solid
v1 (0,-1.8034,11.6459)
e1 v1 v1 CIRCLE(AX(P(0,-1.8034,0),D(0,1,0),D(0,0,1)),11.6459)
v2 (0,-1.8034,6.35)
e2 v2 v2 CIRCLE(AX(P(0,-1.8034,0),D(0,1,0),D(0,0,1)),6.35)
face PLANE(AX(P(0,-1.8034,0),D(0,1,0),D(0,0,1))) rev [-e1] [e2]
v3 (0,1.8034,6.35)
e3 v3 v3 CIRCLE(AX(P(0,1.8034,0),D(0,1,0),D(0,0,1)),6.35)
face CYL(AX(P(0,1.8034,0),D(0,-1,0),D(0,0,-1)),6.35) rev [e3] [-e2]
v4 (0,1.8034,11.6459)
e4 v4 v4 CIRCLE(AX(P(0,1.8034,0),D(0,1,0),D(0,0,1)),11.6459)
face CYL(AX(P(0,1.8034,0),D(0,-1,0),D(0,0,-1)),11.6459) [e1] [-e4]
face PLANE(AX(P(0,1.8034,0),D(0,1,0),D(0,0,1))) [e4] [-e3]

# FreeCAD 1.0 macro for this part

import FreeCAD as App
import Part
import Sketcher
from FreeCAD import Vector
Q = App.Units.Quantity

doc = App.newDocument("Part")
body = doc.addObject("PartDesign::Body", "Body")

# Sketch on XZ plane
sketch1 = body.newObject("Sketcher::SketchObject", "Sketch")
sketch1.AttachmentSupport = (doc.getObject("XZ_Plane"), [""])
sketch1.MapMode = "FlatFace"
sketch1.addGeometry([
    Part.Circle(Vector(0, 0, 0), Vector(0, 0, 1), 11.6459),
    Part.Circle(Vector(0, 0, 0), Vector(0, 0, 1), 6.35),
], False)
sketch1.addConstraint([
    Sketcher.Constraint("Coincident", 0, 3, -1, 1),
    Sketcher.Constraint("Coincident", 1, 3, -1, 1),
    Sketcher.Constraint("Diameter", 1, Q("0.5 in")),
    Sketcher.Constraint("Diameter", 0, Q("0.917 in")),
])
pad1 = body.newObject("PartDesign::Pad", "Pad")
pad1.Profile = sketch1
pad1.Length = Q("0.142 in")
pad1.Midplane = True

doc.recompute()
